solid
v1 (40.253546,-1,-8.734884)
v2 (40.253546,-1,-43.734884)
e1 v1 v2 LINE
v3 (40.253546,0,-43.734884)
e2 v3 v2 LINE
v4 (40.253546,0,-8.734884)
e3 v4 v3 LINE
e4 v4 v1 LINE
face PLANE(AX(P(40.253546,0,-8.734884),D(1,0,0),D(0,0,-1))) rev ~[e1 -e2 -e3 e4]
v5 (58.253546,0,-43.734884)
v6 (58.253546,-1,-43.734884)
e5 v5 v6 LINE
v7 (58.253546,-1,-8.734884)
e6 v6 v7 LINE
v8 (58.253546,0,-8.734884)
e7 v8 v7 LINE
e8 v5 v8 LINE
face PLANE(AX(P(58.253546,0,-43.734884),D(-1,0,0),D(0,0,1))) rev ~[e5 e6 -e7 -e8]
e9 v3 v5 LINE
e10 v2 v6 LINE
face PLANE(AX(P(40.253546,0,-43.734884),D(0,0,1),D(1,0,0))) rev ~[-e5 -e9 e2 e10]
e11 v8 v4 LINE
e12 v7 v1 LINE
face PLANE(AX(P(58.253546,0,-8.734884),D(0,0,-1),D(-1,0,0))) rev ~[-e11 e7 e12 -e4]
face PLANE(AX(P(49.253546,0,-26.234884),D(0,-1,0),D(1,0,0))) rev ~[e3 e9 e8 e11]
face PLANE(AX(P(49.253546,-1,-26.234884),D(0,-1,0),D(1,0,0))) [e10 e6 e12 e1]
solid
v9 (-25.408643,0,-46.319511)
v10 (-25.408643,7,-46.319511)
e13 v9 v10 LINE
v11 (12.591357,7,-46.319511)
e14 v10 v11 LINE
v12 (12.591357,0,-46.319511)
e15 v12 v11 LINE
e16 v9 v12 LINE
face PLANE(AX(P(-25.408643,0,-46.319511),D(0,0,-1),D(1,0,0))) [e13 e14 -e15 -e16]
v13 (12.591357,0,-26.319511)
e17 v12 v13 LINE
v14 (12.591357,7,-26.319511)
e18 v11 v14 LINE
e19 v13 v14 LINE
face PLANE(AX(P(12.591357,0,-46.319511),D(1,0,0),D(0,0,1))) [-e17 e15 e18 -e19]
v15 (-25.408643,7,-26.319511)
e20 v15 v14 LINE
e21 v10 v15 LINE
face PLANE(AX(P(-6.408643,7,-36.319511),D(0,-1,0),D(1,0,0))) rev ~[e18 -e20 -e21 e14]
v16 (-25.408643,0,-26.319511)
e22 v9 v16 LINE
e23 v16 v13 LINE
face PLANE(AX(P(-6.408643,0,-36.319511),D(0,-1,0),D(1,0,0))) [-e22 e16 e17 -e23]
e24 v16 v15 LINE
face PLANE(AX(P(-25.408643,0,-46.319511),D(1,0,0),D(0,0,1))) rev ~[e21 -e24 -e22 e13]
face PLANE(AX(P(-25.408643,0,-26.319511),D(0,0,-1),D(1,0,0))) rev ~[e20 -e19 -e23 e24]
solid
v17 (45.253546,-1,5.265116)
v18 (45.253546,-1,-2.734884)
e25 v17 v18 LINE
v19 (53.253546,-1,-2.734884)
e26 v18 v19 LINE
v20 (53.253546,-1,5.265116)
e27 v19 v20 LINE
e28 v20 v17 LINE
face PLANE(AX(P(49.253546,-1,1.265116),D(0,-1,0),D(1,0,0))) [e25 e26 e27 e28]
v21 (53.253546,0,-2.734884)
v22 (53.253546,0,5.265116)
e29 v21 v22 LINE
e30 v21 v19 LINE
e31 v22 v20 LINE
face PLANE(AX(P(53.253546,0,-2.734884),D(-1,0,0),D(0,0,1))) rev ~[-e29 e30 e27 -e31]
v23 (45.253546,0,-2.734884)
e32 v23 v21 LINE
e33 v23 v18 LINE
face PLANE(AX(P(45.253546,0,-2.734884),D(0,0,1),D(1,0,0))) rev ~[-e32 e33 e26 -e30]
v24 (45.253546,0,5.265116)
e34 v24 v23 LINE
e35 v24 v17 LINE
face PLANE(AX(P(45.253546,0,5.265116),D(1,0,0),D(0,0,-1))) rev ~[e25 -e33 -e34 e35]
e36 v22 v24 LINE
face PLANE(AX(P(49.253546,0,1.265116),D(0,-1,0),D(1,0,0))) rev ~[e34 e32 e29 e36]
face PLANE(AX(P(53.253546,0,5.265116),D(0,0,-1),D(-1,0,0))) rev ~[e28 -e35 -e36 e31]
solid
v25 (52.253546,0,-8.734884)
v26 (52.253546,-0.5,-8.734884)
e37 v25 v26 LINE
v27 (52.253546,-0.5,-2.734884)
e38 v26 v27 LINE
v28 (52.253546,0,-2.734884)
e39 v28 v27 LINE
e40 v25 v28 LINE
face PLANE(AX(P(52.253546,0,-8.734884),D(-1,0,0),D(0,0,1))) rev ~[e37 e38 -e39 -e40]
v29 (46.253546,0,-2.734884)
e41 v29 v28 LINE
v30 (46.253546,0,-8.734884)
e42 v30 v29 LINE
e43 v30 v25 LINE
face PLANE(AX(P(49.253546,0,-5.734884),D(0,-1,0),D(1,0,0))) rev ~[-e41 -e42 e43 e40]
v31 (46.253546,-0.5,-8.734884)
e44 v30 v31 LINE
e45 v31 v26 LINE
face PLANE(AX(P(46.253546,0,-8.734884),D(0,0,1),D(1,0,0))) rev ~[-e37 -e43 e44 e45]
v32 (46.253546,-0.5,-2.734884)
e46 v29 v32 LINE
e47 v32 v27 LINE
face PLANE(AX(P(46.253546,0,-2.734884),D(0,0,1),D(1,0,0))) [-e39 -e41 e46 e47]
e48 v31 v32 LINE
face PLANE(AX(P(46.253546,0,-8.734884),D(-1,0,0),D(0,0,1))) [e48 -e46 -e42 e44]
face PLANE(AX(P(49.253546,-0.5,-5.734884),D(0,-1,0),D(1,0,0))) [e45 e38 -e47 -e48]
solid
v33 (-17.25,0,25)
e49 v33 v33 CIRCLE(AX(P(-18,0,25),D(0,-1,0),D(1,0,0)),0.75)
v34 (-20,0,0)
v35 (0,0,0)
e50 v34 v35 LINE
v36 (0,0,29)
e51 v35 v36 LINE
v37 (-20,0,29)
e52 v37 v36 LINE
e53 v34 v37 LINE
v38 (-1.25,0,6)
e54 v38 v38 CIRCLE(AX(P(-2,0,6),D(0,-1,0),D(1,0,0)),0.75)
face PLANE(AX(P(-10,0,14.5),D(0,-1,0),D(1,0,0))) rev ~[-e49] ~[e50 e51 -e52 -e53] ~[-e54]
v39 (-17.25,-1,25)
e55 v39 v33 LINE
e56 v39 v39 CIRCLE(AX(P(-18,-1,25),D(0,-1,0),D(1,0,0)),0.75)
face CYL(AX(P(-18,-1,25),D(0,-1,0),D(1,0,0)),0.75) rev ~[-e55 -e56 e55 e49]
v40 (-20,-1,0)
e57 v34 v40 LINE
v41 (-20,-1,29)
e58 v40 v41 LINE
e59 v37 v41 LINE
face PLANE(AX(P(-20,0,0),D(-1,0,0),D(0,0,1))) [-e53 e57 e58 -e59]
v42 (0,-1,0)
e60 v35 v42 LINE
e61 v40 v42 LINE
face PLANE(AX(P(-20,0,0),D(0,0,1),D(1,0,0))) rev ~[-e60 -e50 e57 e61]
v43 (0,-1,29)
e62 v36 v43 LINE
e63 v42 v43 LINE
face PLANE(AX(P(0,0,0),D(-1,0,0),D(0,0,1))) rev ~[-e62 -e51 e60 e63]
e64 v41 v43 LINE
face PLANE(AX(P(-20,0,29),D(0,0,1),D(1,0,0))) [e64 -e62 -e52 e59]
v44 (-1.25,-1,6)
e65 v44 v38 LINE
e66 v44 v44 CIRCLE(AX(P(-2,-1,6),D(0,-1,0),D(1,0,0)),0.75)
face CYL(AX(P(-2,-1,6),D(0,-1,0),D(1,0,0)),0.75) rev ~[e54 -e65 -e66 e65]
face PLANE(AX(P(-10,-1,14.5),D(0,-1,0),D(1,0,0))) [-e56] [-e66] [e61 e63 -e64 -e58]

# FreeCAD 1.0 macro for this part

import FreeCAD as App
import Part
import Sketcher
from FreeCAD import Vector

doc = App.newDocument("Part")
body = doc.addObject("PartDesign::Body", "Body")

sketch1 = body.newObject("Sketcher::SketchObject", "Sketch")
sketch1.AttachmentSupport = (doc.getObject("XZ_Plane"), [""])
sketch1.MapMode = "FlatFace"
sketch1.addGeometry([
    Part.LineSegment(Vector(-20, 29, 0), Vector(-20, 0, 0)),
    Part.LineSegment(Vector(-20, 0, 0), Vector(0, 0, 0)),
    Part.LineSegment(Vector(0, 0, 0), Vector(0, 29, 0)),
    Part.LineSegment(Vector(0, 29, 0), Vector(-20, 29, 0)),
], False)
sketch1.addConstraint([
    Sketcher.Constraint("Coincident", 0, 2, 1, 1),
    Sketcher.Constraint("Coincident", 1, 2, 2, 1),
    Sketcher.Constraint("Coincident", 2, 2, 3, 1),
    Sketcher.Constraint("Coincident", 3, 2, 0, 1),
    Sketcher.Constraint("Vertical", 0),
    Sketcher.Constraint("Horizontal", 1),
    Sketcher.Constraint("Vertical", 2),
    Sketcher.Constraint("Horizontal", 3),
    Sketcher.Constraint("Coincident", 1, 2, -1, 1),
    Sketcher.Constraint("DistanceX", 1, 1, 1, 2, 20.0),
    Sketcher.Constraint("DistanceY", 0, 2, 0, 1, 29.0),
])
pad1 = body.newObject("PartDesign::Pad", "Pad")
pad1.Profile = sketch1
pad1.Length = 1

sketch2 = body.newObject("Sketcher::SketchObject", "Sketch001")
sketch2.AttachmentSupport = (doc.getObject("XZ_Plane"), [""])
sketch2.MapMode = "FlatFace"
sketch2.AttachmentOffset = App.Placement(Vector(0, 0, 1), App.Rotation())
sketch2.addGeometry([
    Part.Circle(Vector(-2, 6, 0), Vector(0, 0, 1), 0.75),
    Part.Circle(Vector(-18, 25, 0), Vector(0, 0, 1), 0.75),
], False)
sketch2.addConstraint([
    Sketcher.Constraint("Equal", 0, 1),
    Sketcher.Constraint("Diameter", 0, 1.5),
    Sketcher.Constraint("DistanceX", 0, 3, -1, 1, 2.0),
    Sketcher.Constraint("DistanceY", -1, 1, 0, 3, 6.0),
    Sketcher.Constraint("DistanceX", 1, 3, -1, 1, 18.0),
    Sketcher.Constraint("DistanceY", -1, 1, 1, 3, 25.0),
])
pocket1 = body.newObject("PartDesign::Pocket", "Pocket")
pocket1.Profile = sketch2
pocket1.Length = 25
body2 = doc.addObject("PartDesign::Body", "Body001")
body2.AllowCompound = True

sketch3 = body2.newObject("Sketcher::SketchObject", "Sketch002")
sketch3.AttachmentSupport = (doc.getObject("XZ_Plane001"), [""])
sketch3.MapMode = "FlatFace"
sketch3.addGeometry([
    Part.LineSegment(Vector(40.253546, -43.734884, 0), Vector(58.253546, -43.734884, 0)),
    Part.LineSegment(Vector(58.253546, -43.734884, 0), Vector(58.253546, -8.734884, 0)),
    Part.LineSegment(Vector(58.253546, -8.734884, 0), Vector(40.253546, -8.734884, 0)),
    Part.LineSegment(Vector(40.253546, -8.734884, 0), Vector(40.253546, -43.734884, 0)),
    Part.LineSegment(Vector(53.253546, -2.734884, 0), Vector(53.253546, 5.265116, 0)),
    Part.LineSegment(Vector(53.253546, 5.265116, 0), Vector(45.253546, 5.265116, 0)),
    Part.LineSegment(Vector(45.253546, 5.265116, 0), Vector(45.253546, -2.734884, 0)),
    Part.LineSegment(Vector(45.253546, -2.734884, 0), Vector(53.253546, -2.734884, 0)),
], False)
sketch3.addConstraint([
    Sketcher.Constraint("Coincident", 0, 2, 1, 1),
    Sketcher.Constraint("Coincident", 1, 2, 2, 1),
    Sketcher.Constraint("Coincident", 2, 2, 3, 1),
    Sketcher.Constraint("Coincident", 3, 2, 0, 1),
    Sketcher.Constraint("Coincident", 4, 2, 5, 1),
    Sketcher.Constraint("Coincident", 5, 2, 6, 1),
    Sketcher.Constraint("Coincident", 6, 2, 7, 1),
    Sketcher.Constraint("Coincident", 7, 2, 4, 1),
    Sketcher.Constraint("Horizontal", 0),
    Sketcher.Constraint("Vertical", 1),
    Sketcher.Constraint("Horizontal", 2),
    Sketcher.Constraint("Vertical", 3),
    Sketcher.Constraint("Vertical", 4),
    Sketcher.Constraint("Horizontal", 5),
    Sketcher.Constraint("Vertical", 6),
    Sketcher.Constraint("Horizontal", 7),
    Sketcher.Constraint("Equal", 7, 4),
    Sketcher.Constraint("DistanceX", 0, 1, 0, 2, 18.0),
    Sketcher.Constraint("DistanceX", 5, 2, 5, 1, 8.0),
    Sketcher.Constraint("DistanceY", 1, 1, 1, 2, 35.0),
    Sketcher.Constraint("DistanceX", 4, 2, 1, 2, 5.0),
    Sketcher.Constraint("DistanceY", 1, 2, 4, 2, 14.0),
    Sketcher.Constraint("DistanceX", -1, 1, 0, 2, 58.253546),
    Sketcher.Constraint("DistanceY", 0, 2, -1, 1, 43.734884),
])
pad2 = body2.newObject("PartDesign::Pad", "Pad001")
pad2.Profile = sketch3
pad2.Length = 1
body3 = doc.addObject("PartDesign::Body", "Body002")

sketch4 = body3.newObject("Sketcher::SketchObject", "Sketch003")
sketch4.AttachmentSupport = (doc.getObject("XZ_Plane002"), [""])
sketch4.MapMode = "FlatFace"
sketch4.addGeometry([
    Part.LineSegment(Vector(46.253546, -2.734884, 0), Vector(46.253546, -8.734884, 0)),
    Part.LineSegment(Vector(46.253546, -8.734884, 0), Vector(52.253546, -8.734884, 0)),
    Part.LineSegment(Vector(52.253546, -8.734884, 0), Vector(52.253546, -2.734884, 0)),
    Part.LineSegment(Vector(52.253546, -2.734884, 0), Vector(46.253546, -2.734884, 0)),
], False)
sketch4.addConstraint([
    Sketcher.Constraint("Coincident", 0, 2, 1, 1),
    Sketcher.Constraint("Coincident", 1, 2, 2, 1),
    Sketcher.Constraint("Coincident", 2, 2, 3, 1),
    Sketcher.Constraint("Coincident", 3, 2, 0, 1),
    Sketcher.Constraint("Vertical", 0),
    Sketcher.Constraint("Horizontal", 1),
    Sketcher.Constraint("Vertical", 2),
    Sketcher.Constraint("Horizontal", 3),
    Sketcher.Constraint("Equal", 3, 0),
    Sketcher.Constraint("DistanceX", 1, 1, 1, 2, 6.0),
    Sketcher.Constraint("DistanceX", -1, 1, 0, 2, 46.253546),
    Sketcher.Constraint("DistanceY", 0, 2, -1, 1, 8.734884),
])
pad3 = body3.newObject("PartDesign::Pad", "Pad002")
pad3.Profile = sketch4
pad3.Length = 0.5
body4 = doc.addObject("PartDesign::Body", "Body003")

sketch5 = body4.newObject("Sketcher::SketchObject", "Sketch004")
sketch5.AttachmentSupport = (doc.getObject("XZ_Plane003"), [""])
sketch5.MapMode = "FlatFace"
sketch5.addGeometry([
    Part.LineSegment(Vector(-25.408643, -26.319511, 0), Vector(-25.408643, -46.319511, 0)),
    Part.LineSegment(Vector(-25.408643, -46.319511, 0), Vector(12.591357, -46.319511, 0)),
    Part.LineSegment(Vector(12.591357, -46.319511, 0), Vector(12.591357, -26.319511, 0)),
    Part.LineSegment(Vector(12.591357, -26.319511, 0), Vector(-25.408643, -26.319511, 0)),
], False)
sketch5.addConstraint([
    Sketcher.Constraint("Coincident", 0, 2, 1, 1),
    Sketcher.Constraint("Coincident", 1, 2, 2, 1),
    Sketcher.Constraint("Coincident", 2, 2, 3, 1),
    Sketcher.Constraint("Coincident", 3, 2, 0, 1),
    Sketcher.Constraint("Vertical", 0),
    Sketcher.Constraint("Horizontal", 1),
    Sketcher.Constraint("Vertical", 2),
    Sketcher.Constraint("Horizontal", 3),
    Sketcher.Constraint("DistanceX", 1, 1, 1, 2, 38.0),
    Sketcher.Constraint("DistanceY", 0, 2, 0, 1, 20.0),
    Sketcher.Constraint("DistanceY", 0, 2, -1, 1, 46.319511),
    Sketcher.Constraint("DistanceX", 0, 2, -1, 1, 25.408643),
])
pad4 = body4.newObject("PartDesign::Pad", "Pad003")
pad4.Profile = sketch5
pad4.Length = 7
pad4.Reversed = True

doc.recompute()
